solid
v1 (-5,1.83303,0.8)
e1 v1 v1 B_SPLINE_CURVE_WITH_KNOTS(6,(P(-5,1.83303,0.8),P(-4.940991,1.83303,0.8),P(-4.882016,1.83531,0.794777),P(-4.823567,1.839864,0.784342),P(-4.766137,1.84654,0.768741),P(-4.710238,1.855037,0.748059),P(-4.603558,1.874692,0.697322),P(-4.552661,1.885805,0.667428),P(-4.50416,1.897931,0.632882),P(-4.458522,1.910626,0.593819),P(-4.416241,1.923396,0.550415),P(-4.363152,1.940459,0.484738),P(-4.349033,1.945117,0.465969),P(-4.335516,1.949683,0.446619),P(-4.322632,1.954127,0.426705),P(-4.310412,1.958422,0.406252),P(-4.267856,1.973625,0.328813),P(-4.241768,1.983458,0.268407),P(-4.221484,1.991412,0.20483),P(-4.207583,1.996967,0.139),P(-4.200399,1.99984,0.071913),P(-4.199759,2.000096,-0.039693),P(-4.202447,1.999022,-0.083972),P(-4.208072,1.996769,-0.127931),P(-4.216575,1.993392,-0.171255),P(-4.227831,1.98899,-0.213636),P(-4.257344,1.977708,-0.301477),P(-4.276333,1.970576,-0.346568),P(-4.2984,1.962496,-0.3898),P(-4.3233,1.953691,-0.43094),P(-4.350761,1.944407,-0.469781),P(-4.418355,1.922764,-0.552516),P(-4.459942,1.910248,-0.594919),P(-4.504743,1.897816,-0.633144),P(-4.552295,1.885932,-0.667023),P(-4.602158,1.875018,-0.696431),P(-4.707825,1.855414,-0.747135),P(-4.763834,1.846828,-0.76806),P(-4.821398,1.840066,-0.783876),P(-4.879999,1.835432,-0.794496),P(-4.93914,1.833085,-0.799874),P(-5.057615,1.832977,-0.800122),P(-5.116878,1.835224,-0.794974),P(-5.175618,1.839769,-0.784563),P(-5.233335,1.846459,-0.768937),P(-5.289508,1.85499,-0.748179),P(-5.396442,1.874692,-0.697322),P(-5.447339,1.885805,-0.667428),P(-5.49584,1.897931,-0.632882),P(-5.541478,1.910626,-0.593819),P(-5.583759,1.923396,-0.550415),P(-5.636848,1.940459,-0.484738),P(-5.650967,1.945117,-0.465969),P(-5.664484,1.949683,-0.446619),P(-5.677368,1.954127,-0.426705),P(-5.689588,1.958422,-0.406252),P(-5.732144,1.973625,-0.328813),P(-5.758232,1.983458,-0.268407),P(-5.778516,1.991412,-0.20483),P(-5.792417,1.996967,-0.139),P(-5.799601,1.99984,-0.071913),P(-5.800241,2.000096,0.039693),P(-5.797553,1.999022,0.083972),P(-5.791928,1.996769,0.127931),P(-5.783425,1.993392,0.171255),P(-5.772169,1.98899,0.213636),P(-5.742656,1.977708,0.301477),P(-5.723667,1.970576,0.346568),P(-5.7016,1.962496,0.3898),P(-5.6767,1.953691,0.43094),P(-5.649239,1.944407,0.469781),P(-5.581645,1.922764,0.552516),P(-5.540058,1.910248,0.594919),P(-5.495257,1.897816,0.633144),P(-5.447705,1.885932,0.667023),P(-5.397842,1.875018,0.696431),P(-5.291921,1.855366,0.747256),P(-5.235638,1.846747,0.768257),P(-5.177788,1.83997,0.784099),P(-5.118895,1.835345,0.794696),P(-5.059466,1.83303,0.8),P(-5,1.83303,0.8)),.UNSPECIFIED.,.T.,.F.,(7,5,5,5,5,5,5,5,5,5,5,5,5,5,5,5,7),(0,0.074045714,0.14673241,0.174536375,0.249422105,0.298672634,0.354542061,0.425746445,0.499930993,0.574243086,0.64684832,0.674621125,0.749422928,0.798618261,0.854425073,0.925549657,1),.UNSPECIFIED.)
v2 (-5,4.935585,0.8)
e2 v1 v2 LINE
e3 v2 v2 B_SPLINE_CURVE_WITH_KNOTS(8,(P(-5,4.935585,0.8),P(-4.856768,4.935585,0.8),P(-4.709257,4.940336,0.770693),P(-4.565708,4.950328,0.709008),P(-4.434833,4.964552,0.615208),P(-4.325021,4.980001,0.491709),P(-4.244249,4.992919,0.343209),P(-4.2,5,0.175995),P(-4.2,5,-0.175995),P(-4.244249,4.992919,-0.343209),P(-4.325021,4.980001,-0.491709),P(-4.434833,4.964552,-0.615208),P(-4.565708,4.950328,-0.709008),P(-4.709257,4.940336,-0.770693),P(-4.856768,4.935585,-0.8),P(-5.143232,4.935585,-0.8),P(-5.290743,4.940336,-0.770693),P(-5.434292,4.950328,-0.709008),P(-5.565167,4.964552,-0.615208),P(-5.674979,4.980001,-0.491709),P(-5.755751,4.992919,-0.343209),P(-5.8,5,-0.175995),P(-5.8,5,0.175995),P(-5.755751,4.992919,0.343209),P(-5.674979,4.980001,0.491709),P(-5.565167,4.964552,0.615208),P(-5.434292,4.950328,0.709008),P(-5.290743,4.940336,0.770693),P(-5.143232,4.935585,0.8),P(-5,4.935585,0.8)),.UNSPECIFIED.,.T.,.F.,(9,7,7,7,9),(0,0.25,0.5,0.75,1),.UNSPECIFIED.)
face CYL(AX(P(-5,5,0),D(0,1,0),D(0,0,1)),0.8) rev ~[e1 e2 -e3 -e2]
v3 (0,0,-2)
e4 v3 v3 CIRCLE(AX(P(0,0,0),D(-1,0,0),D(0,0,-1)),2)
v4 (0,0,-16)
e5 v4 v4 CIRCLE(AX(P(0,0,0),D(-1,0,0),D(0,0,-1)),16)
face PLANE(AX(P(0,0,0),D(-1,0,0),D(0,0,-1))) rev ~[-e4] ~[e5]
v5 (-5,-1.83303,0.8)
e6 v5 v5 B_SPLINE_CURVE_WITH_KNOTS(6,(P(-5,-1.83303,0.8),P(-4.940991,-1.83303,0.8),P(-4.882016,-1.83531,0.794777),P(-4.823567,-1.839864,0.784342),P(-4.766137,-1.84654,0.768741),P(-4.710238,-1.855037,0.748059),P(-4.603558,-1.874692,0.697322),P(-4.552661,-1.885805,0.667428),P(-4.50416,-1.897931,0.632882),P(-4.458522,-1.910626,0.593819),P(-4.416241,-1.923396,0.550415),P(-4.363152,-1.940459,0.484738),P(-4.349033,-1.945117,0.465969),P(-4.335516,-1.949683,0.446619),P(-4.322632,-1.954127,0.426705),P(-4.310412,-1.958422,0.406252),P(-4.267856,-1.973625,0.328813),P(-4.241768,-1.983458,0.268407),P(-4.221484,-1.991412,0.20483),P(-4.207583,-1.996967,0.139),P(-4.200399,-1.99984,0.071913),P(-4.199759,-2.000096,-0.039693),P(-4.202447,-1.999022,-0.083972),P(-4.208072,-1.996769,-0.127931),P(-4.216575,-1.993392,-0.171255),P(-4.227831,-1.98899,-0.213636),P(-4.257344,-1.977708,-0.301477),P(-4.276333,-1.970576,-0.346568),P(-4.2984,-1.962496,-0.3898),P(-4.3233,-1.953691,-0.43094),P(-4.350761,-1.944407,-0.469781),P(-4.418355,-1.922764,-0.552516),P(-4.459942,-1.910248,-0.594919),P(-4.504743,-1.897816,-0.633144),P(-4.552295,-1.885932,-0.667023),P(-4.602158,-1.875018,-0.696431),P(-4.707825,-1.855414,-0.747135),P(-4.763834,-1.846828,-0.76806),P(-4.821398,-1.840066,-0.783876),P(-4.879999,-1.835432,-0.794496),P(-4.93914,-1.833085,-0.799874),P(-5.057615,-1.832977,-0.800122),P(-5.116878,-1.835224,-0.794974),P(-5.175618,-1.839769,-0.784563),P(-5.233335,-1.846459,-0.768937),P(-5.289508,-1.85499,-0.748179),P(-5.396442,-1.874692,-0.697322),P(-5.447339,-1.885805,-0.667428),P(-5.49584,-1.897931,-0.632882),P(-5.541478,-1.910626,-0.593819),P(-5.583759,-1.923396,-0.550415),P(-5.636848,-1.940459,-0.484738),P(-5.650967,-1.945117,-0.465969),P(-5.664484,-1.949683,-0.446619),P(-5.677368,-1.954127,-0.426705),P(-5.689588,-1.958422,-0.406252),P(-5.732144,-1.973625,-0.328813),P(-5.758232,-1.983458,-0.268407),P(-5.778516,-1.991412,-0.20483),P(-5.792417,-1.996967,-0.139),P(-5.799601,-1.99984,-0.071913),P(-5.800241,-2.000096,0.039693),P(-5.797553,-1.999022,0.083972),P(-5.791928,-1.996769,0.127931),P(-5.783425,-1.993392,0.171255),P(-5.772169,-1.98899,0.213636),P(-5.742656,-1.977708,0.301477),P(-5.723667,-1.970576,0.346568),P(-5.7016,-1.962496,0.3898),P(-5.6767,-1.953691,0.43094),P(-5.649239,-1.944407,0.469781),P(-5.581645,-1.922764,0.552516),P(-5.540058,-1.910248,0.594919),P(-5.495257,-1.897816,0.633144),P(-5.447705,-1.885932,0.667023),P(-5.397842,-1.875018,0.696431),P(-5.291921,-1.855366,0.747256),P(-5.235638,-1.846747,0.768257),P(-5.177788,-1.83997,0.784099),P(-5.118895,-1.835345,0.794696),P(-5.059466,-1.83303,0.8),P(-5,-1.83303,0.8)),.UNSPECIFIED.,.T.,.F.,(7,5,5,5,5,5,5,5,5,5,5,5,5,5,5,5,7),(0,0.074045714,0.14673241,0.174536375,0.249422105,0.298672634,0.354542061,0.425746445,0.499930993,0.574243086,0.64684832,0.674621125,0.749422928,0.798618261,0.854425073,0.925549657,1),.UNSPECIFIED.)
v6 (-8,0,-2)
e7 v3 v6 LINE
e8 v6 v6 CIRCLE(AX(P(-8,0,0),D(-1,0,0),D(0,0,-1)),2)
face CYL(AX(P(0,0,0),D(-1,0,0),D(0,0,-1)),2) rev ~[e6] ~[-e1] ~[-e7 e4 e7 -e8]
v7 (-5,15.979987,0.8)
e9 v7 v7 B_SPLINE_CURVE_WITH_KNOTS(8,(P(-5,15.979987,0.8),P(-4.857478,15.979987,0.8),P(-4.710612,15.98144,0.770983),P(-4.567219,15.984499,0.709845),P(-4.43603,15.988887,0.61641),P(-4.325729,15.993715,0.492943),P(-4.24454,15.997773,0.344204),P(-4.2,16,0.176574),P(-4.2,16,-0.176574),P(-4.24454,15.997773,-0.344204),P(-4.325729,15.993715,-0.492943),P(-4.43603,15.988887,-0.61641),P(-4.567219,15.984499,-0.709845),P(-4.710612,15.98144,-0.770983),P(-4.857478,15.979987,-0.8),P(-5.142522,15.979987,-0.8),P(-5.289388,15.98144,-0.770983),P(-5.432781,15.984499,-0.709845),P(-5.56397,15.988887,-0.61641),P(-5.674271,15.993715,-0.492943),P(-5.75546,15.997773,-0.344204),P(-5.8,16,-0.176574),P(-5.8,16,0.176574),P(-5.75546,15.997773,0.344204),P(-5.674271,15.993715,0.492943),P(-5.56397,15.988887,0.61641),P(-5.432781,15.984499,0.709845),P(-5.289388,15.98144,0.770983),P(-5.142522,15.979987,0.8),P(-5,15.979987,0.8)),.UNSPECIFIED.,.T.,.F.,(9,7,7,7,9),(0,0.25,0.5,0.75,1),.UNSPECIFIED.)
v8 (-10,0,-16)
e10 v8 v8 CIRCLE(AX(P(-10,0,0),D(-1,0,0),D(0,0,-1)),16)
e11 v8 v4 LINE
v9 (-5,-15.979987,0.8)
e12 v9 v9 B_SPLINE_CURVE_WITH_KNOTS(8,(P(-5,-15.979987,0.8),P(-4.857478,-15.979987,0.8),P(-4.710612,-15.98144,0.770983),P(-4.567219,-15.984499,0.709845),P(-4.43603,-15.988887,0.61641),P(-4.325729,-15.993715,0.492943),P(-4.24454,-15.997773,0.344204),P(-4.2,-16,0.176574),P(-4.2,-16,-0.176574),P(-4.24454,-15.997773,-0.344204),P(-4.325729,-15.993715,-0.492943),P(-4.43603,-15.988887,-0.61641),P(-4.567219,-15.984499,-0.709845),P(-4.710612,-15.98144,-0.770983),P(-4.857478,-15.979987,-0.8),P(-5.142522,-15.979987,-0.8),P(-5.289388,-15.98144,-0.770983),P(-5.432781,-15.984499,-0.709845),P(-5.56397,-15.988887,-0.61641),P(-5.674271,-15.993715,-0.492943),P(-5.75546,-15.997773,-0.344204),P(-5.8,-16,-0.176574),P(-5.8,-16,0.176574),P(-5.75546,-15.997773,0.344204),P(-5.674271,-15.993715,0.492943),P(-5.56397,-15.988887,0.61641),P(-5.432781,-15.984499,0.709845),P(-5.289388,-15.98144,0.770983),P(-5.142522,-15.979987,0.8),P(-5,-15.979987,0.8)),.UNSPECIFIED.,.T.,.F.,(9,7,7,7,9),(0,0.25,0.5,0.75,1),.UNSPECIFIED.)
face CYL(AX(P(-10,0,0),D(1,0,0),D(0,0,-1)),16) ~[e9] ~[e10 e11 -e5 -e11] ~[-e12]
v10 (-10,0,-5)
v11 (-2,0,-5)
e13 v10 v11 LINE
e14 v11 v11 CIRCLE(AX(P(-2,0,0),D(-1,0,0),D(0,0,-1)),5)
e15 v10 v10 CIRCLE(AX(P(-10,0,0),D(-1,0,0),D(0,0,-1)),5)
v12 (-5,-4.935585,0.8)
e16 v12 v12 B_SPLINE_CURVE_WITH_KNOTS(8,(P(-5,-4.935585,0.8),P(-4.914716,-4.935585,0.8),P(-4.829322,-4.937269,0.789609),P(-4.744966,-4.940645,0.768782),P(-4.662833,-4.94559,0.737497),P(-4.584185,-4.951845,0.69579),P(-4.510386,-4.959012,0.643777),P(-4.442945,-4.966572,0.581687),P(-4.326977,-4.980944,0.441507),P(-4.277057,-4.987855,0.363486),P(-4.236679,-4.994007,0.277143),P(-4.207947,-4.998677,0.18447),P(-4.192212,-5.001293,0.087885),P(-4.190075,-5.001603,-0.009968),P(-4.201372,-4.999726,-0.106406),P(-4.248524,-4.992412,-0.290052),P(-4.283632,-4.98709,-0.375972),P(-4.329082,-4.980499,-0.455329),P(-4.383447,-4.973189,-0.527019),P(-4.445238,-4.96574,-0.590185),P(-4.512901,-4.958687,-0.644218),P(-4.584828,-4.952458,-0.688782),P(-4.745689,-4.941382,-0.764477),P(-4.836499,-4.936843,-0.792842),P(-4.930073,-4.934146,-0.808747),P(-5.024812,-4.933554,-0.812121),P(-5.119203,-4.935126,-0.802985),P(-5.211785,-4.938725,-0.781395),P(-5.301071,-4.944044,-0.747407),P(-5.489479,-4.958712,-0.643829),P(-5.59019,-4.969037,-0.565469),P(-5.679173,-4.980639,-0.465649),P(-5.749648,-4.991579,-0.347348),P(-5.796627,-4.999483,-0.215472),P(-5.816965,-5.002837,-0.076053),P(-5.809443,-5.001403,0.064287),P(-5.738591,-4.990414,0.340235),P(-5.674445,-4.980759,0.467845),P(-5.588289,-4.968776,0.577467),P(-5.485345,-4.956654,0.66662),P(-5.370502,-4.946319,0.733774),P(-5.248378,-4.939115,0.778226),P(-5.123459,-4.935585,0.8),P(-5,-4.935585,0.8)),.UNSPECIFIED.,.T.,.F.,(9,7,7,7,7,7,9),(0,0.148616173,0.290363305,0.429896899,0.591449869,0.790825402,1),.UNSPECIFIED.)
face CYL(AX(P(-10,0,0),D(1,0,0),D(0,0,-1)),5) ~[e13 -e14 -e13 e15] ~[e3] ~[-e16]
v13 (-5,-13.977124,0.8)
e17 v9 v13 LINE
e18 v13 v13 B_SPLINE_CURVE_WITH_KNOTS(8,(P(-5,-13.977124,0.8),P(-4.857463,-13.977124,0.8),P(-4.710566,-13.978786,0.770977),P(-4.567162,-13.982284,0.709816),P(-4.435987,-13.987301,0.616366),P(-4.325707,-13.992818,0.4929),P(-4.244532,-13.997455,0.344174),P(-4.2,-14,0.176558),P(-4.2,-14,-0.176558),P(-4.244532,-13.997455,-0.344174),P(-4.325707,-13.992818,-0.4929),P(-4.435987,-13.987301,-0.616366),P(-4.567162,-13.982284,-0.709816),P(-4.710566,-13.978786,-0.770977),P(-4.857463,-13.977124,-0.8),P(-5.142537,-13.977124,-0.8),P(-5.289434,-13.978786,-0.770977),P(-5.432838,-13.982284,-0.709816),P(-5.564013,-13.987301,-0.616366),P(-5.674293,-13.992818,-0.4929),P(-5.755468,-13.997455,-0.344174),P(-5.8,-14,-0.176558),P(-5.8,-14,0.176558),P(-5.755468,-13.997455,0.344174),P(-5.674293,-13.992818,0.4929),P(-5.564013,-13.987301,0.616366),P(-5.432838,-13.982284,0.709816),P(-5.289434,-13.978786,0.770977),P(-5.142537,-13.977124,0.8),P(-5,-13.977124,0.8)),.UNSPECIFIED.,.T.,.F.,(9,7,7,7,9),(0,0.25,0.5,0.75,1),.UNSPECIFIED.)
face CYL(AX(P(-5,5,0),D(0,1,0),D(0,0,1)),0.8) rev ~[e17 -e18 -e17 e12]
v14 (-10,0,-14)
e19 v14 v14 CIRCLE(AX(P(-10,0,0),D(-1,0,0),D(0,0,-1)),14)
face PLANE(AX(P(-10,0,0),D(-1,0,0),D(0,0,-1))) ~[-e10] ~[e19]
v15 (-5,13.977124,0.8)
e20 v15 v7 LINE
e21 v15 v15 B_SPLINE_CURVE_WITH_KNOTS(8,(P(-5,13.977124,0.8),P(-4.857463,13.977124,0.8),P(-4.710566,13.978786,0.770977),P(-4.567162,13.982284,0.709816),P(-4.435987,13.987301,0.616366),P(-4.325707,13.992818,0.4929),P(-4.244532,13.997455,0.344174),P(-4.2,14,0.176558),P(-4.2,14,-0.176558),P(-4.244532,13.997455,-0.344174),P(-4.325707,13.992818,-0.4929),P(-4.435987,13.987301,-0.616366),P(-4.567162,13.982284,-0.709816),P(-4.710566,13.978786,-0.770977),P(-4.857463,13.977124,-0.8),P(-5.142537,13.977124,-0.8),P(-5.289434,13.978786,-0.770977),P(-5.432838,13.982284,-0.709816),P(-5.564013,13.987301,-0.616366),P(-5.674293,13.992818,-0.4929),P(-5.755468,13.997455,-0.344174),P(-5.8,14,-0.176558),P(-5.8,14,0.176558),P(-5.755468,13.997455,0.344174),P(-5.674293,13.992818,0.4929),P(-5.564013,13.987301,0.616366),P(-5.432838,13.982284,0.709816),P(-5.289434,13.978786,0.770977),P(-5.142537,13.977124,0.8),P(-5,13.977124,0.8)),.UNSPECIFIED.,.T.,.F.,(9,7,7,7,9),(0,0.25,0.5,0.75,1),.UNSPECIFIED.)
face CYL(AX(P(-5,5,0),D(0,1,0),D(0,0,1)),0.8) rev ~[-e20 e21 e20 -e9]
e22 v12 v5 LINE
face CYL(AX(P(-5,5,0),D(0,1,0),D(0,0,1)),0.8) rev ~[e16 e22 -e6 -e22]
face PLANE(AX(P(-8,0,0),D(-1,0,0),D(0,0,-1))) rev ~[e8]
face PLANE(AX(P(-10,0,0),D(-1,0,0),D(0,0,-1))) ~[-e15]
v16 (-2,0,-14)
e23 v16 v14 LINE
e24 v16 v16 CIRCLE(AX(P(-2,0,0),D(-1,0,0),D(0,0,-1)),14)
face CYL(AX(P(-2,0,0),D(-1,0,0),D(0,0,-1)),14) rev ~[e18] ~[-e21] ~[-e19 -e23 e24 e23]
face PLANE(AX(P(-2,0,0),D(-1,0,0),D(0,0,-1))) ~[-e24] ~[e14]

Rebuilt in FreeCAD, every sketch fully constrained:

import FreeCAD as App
import Part
import Sketcher

V = App.Vector


def add_polygon(sketch, points):
    """Adds a closed chain of lines whose ends are joined by coincident constraints."""
    first, n = sketch.GeometryCount, len(points)
    for a, b in zip(points, points[1:] + points[:1]):
        sketch.addGeometry(Part.LineSegment(App.Vector(*a, 0), App.Vector(*b, 0)), False)
    for i in range(n):
        sketch.addConstraint(Sketcher.Constraint("Coincident", first + i, 2, first + (i + 1) % n, 1))

doc = App.newDocument("Part")
body = doc.addObject("PartDesign::Body", "Body")

# Sketch on XY plane
sketch1 = body.newObject("Sketcher::SketchObject", "Sketch")
sketch1.AttachmentSupport = (doc.getObject("XY_Plane"), [""])
sketch1.MapMode = "FlatFace"
add_polygon(sketch1, [(0, 2), (0, 16), (-10, 16), (-10, 14), (-2, 14), (-2, 5), (-10, 5), (-10, 0), (-8, 0), (-8, 2)])  # lines 0-9
sketch1.addConstraint(Sketcher.Constraint("Vertical", 0))
sketch1.addConstraint(Sketcher.Constraint("Horizontal", 1))
sketch1.addConstraint(Sketcher.Constraint("Vertical", 2))
sketch1.addConstraint(Sketcher.Constraint("Horizontal", 3))
sketch1.addConstraint(Sketcher.Constraint("Vertical", 4))
sketch1.addConstraint(Sketcher.Constraint("Horizontal", 5))
sketch1.addConstraint(Sketcher.Constraint("Vertical", 6))
sketch1.addConstraint(Sketcher.Constraint("Horizontal", 7))
sketch1.addConstraint(Sketcher.Constraint("Vertical", 8))
sketch1.addConstraint(Sketcher.Constraint("Horizontal", 9))
sketch1.addConstraint(Sketcher.Constraint("PointOnObject", 0, 2, -2))
sketch1.addConstraint(Sketcher.Constraint("PointOnObject", 6, 2, -1))
sketch1.addConstraint(Sketcher.Constraint("Vertical", 2, 2, 5, 2))
sketch1.addConstraint(Sketcher.Constraint("Equal", 5, 9))
sketch1.addConstraint(Sketcher.Constraint("Equal", 7, 2))
sketch1.addConstraint(Sketcher.Constraint("Equal", 2, 8))
sketch1.addConstraint(Sketcher.Constraint("DistanceX", 1, 2, 1, 1, 10.0))
sketch1.addConstraint(Sketcher.Constraint("DistanceX", 3, 1, 3, 2, 8.0))
sketch1.addConstraint(Sketcher.Constraint("DistanceY", 0, 1, 0, 2, 14.0))
sketch1.addConstraint(Sketcher.Constraint("DistanceY", 4, 2, 4, 1, 9.0))
revolution = body.newObject("PartDesign::Revolution", "Revolution")
revolution.Profile = sketch1
revolution.ReferenceAxis = (sketch1, ["H_Axis"])
revolution.Angle = 360

# Sketch on XZ plane
sketch2 = body.newObject("Sketcher::SketchObject", "Sketch001")
sketch2.AttachmentSupport = (doc.getObject("XZ_Plane"), [""])
sketch2.MapMode = "FlatFace"
sketch2.AttachmentOffset = App.Placement(V(0, 0, -5), App.Rotation())
sketch2.addGeometry(Part.Circle(V(-5, 0, 0), V(0, 0, 1), 0.8), False)
sketch2.addConstraint(Sketcher.Constraint("PointOnObject", 0, 3, -1))
sketch2.addConstraint(Sketcher.Constraint("Diameter", 0, 1.6))
sketch2.addConstraint(Sketcher.Constraint("DistanceX", 0, 3, -1, 1, 5.0))
pocket1 = body.newObject("PartDesign::Pocket", "Pocket")
pocket1.Profile = sketch2
pocket1.Length = 70
pocket1.Midplane = True

doc.recompute()
